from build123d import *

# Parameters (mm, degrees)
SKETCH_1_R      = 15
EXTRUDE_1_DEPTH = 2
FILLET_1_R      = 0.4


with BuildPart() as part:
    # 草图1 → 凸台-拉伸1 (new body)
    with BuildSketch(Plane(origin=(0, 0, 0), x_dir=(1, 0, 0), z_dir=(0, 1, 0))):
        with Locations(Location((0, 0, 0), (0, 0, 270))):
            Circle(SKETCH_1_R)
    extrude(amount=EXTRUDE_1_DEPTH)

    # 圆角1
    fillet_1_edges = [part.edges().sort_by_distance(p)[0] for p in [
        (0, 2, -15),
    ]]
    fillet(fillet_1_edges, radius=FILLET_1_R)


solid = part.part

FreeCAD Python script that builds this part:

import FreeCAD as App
import Part
import Sketcher


def edges_at(feature, points):
    """Names of the edges that pass closest to the given points."""
    edges = feature.Shape.Edges
    near = lambda p: min(range(len(edges)), key=lambda i: edges[i].distToShape(Part.Vertex(*p))[0])
    return sorted({f"Edge{near(p) + 1}" for p in points})

doc = App.newDocument("Part")
body = doc.addObject("PartDesign::Body", "Body")

sketch1 = body.newObject("Sketcher::SketchObject", "Sketch")
sketch1.AttachmentSupport = (doc.getObject("XZ_Plane"), [""])
sketch1.MapMode = "FlatFace"
sketch1.addGeometry(Part.Circle(App.Vector(0, 0, 0), App.Vector(0, 0, 1), 15), False)
sketch1.addConstraint([
    Sketcher.Constraint("Coincident", 0, 3, -1, 1),
    Sketcher.Constraint("Diameter", 0, 30.0),
])
pad1 = body.newObject("PartDesign::Pad", "Pad")
pad1.Profile = sketch1
pad1.Length = 2
pad1.Reversed = True
doc.recompute()

fillet = body.newObject("PartDesign::Fillet", "Fillet")
fillet.Base = (pad1, edges_at(pad1, [(0, 2, -15)]))
fillet.Radius = 0.4

doc.recompute()
